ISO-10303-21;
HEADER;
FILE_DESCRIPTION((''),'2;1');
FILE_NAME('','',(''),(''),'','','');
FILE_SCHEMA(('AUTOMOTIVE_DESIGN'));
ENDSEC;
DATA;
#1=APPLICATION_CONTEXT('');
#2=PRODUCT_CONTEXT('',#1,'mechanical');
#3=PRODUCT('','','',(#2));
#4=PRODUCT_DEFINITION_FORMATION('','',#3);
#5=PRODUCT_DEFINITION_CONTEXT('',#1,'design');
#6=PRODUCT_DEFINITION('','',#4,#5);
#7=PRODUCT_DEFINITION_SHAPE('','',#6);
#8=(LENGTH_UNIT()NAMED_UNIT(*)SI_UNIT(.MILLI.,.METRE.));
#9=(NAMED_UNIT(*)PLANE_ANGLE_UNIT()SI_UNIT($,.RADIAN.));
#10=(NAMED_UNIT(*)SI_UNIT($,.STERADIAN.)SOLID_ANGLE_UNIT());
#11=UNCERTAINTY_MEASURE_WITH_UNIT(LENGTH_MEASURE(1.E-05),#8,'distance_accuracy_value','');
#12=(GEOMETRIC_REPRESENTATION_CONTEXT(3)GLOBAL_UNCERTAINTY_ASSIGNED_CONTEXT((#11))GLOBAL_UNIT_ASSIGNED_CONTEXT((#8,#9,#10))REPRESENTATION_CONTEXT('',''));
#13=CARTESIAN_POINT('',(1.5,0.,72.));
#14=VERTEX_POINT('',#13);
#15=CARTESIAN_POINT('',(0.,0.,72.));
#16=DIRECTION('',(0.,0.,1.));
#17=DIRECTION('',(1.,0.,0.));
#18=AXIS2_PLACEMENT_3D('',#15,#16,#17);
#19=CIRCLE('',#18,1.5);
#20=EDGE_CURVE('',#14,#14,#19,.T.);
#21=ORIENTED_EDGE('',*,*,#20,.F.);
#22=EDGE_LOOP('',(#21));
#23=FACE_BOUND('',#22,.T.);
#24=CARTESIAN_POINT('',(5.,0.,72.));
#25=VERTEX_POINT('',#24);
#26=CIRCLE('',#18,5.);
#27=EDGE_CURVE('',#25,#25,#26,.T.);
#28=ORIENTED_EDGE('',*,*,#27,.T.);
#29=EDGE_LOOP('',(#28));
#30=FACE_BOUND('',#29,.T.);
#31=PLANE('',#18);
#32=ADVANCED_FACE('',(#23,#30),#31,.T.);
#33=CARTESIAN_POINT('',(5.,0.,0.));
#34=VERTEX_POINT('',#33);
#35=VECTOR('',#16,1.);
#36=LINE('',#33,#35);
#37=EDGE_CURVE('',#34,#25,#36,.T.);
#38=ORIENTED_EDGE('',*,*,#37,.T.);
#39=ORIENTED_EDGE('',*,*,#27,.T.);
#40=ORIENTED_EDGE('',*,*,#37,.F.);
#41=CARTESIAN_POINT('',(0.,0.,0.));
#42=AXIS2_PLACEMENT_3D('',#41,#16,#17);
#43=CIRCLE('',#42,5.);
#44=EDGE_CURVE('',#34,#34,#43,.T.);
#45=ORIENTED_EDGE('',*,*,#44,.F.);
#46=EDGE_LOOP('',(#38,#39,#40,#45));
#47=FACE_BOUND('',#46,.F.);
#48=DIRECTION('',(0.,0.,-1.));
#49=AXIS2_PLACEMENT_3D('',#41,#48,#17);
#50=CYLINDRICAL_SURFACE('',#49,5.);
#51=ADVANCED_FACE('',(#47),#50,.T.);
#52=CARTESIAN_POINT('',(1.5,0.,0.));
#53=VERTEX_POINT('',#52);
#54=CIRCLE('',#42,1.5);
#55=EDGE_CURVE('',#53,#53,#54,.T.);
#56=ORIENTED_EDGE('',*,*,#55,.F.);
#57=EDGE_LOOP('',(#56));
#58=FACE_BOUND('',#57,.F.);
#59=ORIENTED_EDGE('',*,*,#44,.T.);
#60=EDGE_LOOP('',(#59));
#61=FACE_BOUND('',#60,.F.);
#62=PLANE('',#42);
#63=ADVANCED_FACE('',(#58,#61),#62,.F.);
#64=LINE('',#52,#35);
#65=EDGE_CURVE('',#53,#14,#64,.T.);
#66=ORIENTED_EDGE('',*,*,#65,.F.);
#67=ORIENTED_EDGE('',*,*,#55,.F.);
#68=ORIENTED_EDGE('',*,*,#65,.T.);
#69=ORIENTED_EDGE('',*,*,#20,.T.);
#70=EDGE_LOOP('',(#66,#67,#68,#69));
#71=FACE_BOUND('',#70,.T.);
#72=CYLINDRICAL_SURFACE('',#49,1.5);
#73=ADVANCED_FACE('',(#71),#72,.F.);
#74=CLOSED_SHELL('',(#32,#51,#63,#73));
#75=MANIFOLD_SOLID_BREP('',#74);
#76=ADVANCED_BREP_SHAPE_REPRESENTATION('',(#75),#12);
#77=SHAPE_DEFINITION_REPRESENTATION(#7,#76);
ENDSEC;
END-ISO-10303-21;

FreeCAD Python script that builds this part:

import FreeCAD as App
import Part
import Sketcher
from FreeCAD import Vector

doc = App.newDocument("Part")
body = doc.addObject("PartDesign::Body", "Body")

sketch1 = body.newObject("Sketcher::SketchObject", "Sketch")
sketch1.AttachmentSupport = (doc.getObject("XY_Plane"), [""])
sketch1.MapMode = "FlatFace"
sketch1.addGeometry([
    Part.Circle(Vector(0, 0, 0), Vector(0, 0, 1), 5),
    Part.Circle(Vector(0, 0, 0), Vector(0, 0, 1), 1.5),
], False)
sketch1.addConstraint([
    Sketcher.Constraint("Coincident", 0, 3, -1, 1),
    Sketcher.Constraint("Coincident", 1, 3, -1, 1),
    Sketcher.Constraint("Diameter", 0, 10.0),
    Sketcher.Constraint("Diameter", 1, 3.0),
])
pad1 = body.newObject("PartDesign::Pad", "Pad")
pad1.Profile = sketch1
pad1.Length = 72

doc.recompute()
